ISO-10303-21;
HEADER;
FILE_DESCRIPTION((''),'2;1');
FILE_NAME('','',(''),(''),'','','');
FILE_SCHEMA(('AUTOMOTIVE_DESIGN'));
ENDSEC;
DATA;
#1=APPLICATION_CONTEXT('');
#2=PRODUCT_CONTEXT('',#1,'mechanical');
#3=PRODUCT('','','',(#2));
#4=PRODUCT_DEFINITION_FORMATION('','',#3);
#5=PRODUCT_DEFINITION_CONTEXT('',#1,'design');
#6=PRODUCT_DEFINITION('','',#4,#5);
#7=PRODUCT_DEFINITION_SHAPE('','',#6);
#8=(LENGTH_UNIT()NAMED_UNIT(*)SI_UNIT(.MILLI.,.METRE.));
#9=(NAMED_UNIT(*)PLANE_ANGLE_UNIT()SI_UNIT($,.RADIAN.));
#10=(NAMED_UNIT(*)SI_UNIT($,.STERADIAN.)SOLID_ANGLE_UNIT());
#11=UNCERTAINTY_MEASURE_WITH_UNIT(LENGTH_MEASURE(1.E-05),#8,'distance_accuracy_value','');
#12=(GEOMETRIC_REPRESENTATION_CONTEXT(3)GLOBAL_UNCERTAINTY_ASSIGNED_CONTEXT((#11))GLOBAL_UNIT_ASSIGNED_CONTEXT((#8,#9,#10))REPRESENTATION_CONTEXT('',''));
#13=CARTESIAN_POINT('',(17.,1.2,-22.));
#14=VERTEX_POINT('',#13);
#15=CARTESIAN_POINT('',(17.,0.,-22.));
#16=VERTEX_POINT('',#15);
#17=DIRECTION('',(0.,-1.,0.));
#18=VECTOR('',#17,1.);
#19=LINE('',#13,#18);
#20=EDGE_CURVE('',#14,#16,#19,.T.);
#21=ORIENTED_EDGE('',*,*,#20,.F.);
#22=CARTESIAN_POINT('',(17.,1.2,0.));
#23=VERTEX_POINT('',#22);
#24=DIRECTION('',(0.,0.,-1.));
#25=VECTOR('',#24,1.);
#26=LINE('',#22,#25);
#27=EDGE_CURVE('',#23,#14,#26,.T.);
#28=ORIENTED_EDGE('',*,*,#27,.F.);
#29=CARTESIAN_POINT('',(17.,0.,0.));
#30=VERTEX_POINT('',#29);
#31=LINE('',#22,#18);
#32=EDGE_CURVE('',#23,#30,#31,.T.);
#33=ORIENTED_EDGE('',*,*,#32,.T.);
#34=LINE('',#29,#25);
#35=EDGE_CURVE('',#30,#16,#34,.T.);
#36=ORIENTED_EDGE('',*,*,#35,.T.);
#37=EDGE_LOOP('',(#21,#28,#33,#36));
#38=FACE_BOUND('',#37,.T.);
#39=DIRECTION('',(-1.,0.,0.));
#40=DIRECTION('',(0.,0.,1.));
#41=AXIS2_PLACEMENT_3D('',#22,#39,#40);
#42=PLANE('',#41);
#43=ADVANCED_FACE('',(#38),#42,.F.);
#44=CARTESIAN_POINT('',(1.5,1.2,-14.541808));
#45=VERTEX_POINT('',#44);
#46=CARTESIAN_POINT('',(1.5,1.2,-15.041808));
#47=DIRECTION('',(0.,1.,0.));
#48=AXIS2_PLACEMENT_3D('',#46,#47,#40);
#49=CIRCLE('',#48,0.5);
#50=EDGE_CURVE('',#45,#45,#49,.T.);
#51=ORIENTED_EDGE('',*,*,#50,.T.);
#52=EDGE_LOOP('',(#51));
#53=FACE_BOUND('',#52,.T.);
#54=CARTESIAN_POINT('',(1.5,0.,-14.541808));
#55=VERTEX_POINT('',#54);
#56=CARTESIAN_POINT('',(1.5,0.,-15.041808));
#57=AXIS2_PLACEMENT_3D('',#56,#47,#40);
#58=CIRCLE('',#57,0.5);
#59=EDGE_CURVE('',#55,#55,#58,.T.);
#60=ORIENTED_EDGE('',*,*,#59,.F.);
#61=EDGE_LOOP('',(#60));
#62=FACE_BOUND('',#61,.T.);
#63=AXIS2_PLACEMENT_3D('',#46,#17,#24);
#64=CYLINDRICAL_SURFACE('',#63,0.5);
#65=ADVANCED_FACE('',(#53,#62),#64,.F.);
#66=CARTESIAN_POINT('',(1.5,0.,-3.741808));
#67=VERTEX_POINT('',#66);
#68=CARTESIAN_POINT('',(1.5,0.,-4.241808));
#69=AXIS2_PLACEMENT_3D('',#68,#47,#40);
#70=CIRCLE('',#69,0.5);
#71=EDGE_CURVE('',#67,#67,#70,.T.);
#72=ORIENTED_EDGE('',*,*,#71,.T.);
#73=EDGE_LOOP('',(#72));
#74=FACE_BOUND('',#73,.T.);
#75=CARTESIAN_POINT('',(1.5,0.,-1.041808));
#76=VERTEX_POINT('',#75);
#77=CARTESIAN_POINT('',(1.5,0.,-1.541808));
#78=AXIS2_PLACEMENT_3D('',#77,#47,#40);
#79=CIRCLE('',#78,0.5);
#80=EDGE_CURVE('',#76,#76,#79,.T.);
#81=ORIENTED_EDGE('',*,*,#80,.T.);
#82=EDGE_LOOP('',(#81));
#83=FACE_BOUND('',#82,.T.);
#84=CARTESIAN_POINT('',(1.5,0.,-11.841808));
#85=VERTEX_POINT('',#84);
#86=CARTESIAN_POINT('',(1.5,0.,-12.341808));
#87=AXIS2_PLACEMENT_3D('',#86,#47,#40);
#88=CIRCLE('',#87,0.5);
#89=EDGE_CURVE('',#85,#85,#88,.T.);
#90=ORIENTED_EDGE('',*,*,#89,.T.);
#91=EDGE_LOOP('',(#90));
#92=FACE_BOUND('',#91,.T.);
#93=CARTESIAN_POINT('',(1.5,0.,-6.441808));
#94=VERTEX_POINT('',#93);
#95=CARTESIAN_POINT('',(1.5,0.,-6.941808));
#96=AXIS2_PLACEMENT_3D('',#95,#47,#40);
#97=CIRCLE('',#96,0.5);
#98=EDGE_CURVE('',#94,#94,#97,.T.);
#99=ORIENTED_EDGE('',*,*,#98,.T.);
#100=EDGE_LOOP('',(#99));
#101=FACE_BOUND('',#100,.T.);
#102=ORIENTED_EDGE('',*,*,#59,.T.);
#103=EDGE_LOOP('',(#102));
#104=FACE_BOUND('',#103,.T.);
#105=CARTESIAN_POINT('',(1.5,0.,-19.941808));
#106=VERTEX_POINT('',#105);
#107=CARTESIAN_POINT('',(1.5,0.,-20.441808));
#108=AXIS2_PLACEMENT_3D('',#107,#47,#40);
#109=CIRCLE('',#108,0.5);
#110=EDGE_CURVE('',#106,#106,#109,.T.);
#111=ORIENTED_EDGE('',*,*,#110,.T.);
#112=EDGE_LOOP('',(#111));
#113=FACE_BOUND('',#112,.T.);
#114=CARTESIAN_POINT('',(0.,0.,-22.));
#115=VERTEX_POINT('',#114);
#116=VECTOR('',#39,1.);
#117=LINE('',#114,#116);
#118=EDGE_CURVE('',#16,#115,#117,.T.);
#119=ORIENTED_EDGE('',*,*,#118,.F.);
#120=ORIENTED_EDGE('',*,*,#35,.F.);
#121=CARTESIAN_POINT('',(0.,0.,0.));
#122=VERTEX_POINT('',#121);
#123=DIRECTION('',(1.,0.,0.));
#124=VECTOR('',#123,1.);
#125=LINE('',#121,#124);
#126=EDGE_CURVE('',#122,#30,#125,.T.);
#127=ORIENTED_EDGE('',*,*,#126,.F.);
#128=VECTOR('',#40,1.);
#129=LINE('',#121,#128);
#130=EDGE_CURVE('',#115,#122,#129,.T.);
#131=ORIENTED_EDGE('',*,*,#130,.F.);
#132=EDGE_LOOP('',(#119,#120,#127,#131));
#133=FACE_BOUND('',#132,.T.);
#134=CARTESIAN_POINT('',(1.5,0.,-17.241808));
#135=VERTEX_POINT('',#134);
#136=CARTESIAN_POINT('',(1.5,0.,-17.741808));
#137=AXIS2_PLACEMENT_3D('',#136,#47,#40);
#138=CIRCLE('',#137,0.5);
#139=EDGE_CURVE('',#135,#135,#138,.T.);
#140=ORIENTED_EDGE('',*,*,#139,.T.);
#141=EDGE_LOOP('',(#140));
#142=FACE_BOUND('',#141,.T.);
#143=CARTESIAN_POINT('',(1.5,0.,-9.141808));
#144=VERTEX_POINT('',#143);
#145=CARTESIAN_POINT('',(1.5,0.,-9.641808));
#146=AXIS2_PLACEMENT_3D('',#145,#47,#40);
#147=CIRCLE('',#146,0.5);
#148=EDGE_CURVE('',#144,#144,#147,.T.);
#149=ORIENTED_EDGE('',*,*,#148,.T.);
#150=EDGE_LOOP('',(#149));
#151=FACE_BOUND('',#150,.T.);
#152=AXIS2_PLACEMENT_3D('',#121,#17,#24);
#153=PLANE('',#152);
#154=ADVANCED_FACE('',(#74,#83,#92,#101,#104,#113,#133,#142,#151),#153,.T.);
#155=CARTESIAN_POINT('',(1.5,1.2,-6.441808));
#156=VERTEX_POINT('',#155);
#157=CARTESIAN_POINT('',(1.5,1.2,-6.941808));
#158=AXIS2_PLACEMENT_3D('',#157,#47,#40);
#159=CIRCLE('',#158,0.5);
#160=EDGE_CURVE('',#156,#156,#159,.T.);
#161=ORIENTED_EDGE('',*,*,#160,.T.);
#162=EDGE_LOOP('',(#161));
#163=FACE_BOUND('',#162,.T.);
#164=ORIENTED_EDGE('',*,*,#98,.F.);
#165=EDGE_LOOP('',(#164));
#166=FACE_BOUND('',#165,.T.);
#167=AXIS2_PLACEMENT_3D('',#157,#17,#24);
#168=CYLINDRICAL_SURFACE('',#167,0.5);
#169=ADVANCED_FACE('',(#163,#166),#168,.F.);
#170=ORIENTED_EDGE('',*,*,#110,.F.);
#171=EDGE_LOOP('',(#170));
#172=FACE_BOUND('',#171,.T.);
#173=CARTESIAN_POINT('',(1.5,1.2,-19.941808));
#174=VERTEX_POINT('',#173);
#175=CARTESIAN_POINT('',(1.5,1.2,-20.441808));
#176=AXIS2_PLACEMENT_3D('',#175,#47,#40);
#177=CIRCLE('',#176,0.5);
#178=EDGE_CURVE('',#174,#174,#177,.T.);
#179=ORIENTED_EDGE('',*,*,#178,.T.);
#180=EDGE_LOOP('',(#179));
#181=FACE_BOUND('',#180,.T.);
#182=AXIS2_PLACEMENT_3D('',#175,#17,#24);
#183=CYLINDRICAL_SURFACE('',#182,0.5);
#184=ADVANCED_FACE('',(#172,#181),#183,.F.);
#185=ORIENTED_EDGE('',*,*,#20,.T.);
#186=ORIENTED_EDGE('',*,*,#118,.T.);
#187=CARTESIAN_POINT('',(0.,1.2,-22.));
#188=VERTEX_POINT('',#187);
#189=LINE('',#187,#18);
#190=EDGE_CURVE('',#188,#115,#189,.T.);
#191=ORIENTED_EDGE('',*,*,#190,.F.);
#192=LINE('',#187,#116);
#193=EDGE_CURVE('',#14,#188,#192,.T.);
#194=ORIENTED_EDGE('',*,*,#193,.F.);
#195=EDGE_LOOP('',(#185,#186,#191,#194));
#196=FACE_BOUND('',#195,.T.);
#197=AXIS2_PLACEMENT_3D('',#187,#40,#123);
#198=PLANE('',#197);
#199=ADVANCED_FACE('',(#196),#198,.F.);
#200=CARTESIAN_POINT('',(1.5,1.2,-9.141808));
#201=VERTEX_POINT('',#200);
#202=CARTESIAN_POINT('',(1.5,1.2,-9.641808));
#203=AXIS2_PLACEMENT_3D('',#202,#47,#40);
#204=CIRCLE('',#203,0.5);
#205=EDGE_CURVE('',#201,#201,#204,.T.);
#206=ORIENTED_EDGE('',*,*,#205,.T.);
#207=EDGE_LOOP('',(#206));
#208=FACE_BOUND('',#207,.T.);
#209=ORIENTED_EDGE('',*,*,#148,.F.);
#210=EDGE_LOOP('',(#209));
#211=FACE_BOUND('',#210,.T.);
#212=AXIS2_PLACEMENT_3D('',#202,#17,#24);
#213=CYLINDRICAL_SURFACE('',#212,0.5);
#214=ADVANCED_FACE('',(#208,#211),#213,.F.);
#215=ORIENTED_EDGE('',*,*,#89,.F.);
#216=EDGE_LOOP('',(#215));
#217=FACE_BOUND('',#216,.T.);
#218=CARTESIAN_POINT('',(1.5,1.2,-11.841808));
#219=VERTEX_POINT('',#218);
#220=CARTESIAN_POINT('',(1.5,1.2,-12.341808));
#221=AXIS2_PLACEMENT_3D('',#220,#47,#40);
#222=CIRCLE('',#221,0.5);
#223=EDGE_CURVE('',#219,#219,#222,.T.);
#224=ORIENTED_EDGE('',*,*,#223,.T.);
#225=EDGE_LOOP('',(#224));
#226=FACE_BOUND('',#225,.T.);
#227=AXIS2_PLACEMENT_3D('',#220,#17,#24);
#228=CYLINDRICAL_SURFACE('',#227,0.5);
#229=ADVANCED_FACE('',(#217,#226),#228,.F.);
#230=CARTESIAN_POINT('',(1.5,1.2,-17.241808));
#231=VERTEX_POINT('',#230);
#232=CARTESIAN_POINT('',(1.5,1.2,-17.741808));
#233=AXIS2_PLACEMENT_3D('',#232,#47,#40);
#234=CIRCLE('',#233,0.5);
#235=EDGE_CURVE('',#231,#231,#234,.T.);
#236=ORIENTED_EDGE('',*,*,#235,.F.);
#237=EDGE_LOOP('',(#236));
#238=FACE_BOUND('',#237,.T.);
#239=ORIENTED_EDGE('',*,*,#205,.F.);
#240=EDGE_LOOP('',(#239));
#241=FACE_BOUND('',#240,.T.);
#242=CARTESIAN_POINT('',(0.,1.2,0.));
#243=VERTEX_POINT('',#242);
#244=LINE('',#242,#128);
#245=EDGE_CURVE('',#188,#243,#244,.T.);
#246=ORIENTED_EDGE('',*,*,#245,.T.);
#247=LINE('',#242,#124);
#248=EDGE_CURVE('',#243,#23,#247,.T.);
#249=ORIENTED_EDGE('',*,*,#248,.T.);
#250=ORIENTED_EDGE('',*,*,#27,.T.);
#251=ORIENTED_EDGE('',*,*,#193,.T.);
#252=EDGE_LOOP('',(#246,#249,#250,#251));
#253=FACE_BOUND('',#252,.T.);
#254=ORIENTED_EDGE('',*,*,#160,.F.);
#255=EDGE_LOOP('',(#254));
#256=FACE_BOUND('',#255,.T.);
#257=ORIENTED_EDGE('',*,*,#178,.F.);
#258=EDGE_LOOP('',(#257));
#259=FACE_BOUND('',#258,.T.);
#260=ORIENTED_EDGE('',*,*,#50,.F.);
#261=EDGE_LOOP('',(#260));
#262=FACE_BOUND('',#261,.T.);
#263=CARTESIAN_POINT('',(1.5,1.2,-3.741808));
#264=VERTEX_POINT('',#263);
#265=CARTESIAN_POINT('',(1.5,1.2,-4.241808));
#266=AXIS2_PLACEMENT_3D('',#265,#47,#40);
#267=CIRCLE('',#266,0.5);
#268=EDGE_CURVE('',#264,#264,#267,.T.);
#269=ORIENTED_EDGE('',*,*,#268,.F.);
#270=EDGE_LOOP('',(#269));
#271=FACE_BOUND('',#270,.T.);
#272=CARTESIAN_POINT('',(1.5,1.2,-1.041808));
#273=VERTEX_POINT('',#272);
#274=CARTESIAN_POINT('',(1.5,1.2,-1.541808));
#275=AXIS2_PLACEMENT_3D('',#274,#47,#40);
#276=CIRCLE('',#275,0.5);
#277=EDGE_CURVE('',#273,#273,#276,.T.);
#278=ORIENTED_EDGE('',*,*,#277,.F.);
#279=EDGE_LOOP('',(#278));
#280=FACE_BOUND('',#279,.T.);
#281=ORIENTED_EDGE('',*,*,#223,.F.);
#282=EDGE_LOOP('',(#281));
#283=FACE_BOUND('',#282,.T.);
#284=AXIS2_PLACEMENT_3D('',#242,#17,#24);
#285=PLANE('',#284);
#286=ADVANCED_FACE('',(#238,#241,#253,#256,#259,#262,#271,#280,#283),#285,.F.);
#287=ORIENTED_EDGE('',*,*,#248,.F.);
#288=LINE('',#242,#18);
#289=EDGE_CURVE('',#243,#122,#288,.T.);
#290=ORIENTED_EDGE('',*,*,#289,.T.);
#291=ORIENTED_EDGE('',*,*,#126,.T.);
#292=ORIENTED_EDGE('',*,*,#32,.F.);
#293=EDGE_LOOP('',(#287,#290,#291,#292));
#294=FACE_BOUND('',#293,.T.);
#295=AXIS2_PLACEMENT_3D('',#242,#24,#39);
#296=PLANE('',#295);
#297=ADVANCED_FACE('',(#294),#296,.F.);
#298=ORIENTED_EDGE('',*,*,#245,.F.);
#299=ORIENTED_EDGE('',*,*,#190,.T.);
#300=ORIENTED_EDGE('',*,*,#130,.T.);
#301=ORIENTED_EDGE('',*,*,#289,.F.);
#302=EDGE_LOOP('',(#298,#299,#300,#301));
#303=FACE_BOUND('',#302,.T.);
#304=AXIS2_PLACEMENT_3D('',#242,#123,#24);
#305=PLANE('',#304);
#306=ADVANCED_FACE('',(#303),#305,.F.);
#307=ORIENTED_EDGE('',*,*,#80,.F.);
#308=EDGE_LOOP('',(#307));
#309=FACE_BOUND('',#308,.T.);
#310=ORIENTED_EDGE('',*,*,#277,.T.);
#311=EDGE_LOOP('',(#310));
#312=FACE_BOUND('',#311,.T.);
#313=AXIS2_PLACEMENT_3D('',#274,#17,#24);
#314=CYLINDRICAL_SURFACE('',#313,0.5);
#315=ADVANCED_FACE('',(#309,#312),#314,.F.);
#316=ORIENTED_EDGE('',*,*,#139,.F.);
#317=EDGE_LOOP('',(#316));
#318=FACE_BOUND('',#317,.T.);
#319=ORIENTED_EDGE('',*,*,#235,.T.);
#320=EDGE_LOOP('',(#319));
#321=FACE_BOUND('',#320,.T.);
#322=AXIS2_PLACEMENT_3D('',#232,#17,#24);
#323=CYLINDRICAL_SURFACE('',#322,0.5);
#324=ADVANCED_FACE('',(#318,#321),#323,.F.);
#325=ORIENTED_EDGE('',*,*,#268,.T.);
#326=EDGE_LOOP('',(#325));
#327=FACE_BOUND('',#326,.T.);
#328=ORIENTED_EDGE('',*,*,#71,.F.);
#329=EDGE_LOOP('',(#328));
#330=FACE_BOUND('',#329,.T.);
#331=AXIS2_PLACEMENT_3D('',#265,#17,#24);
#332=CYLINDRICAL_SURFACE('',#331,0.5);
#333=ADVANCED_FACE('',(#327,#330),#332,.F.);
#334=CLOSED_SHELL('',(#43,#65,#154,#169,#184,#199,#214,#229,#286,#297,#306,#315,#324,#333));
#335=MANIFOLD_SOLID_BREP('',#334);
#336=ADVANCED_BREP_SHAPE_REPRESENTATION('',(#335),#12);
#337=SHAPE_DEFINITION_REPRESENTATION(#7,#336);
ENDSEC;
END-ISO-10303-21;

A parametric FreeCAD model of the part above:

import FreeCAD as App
import Part
import Sketcher

V = App.Vector
Q = App.Units.Quantity

doc = App.newDocument("Part")
body = doc.addObject("PartDesign::Body", "Body")

# Sketch on XZ plane
sketch1 = body.newObject("Sketcher::SketchObject", "Sketch")
sketch1.AttachmentSupport = (doc.getObject("XZ_Plane"), [""])
sketch1.MapMode = "FlatFace"
sketch1.addGeometry([
    Part.LineSegment(V(0, -22, 0), V(0, 0, 0)),  # 0
    Part.LineSegment(V(0, 0, 0), V(17, 0, 0)),  # 1
    Part.LineSegment(V(17, 0, 0), V(17, -22, 0)),  # 2
    Part.LineSegment(V(17, -22, 0), V(0, -22, 0)),  # 3
    Part.Circle(V(1.5, -1.541808, 0), V(0, 0, 1), 0.5),  # 4
    Part.Circle(V(1.5, -4.241808, 0), V(0, 0, 1), 0.5),  # 5
    Part.Circle(V(1.5, -6.941808, 0), V(0, 0, 1), 0.5),  # 6
    Part.Circle(V(1.5, -9.641808, 0), V(0, 0, 1), 0.5),  # 7
    Part.Circle(V(1.5, -12.341808, 0), V(0, 0, 1), 0.5),  # 8
    Part.Circle(V(1.5, -15.041808, 0), V(0, 0, 1), 0.5),  # 9
    Part.Circle(V(1.5, -17.741808, 0), V(0, 0, 1), 0.5),  # 10
    Part.Circle(V(1.5, -20.441808, 0), V(0, 0, 1), 0.5),  # 11
], False)
sketch1.addConstraint([
    Sketcher.Constraint("Coincident", 0, 2, 1, 1),
    Sketcher.Constraint("Coincident", 1, 2, 2, 1),
    Sketcher.Constraint("Coincident", 2, 2, 3, 1),
    Sketcher.Constraint("Coincident", 3, 2, 0, 1),
    Sketcher.Constraint("Vertical", 0),
    Sketcher.Constraint("Horizontal", 1),
    Sketcher.Constraint("Vertical", 2),
    Sketcher.Constraint("Horizontal", 3),
    Sketcher.Constraint("Coincident", 0, 2, -1, 1),
    Sketcher.Constraint("Equal", 4, 5),
    Sketcher.Constraint("Equal", 5, 6),
    Sketcher.Constraint("Equal", 6, 7),
    Sketcher.Constraint("Equal", 7, 8),
    Sketcher.Constraint("Equal", 8, 9),
    Sketcher.Constraint("Equal", 9, 10),
    Sketcher.Constraint("Equal", 10, 11),
    Sketcher.Constraint("Vertical", 4, 3, 5, 3),
    Sketcher.Constraint("Vertical", 5, 3, 6, 3),
    Sketcher.Constraint("Vertical", 6, 3, 7, 3),
    Sketcher.Constraint("Vertical", 7, 3, 8, 3),
    Sketcher.Constraint("Vertical", 8, 3, 9, 3),
    Sketcher.Constraint("Vertical", 9, 3, 10, 3),
    Sketcher.Constraint("Vertical", 10, 3, 11, 3),
    Sketcher.Constraint("Diameter", 4, Q("1 mm")),
    Sketcher.Constraint("DistanceX", 1, 1, 1, 2, Q("17 mm")),
    Sketcher.Constraint("DistanceY", 0, 1, 0, 2, Q("22 mm")),
    Sketcher.Constraint("DistanceX", -1, 1, 4, 3, Q("1.5 mm")),
    Sketcher.Constraint("DistanceY", 5, 3, 4, 3, Q("2.7 mm")),
    Sketcher.Constraint("DistanceY", 6, 3, 5, 3, Q("2.7 mm")),
    Sketcher.Constraint("DistanceY", 7, 3, 6, 3, Q("2.7 mm")),
    Sketcher.Constraint("DistanceY", 8, 3, 7, 3, Q("2.7 mm")),
    Sketcher.Constraint("DistanceY", 9, 3, 8, 3, Q("2.7 mm")),
    Sketcher.Constraint("DistanceY", 10, 3, 9, 3, Q("2.7 mm")),
    Sketcher.Constraint("DistanceY", 11, 3, 10, 3, Q("2.7 mm")),
    Sketcher.Constraint("DistanceY", 4, 3, -1, 1, Q("1.541808 mm")),
])
pad1 = body.newObject("PartDesign::Pad", "Pad")
pad1.Profile = sketch1
pad1.Length = 1.2
pad1.Reversed = True

doc.recompute()
